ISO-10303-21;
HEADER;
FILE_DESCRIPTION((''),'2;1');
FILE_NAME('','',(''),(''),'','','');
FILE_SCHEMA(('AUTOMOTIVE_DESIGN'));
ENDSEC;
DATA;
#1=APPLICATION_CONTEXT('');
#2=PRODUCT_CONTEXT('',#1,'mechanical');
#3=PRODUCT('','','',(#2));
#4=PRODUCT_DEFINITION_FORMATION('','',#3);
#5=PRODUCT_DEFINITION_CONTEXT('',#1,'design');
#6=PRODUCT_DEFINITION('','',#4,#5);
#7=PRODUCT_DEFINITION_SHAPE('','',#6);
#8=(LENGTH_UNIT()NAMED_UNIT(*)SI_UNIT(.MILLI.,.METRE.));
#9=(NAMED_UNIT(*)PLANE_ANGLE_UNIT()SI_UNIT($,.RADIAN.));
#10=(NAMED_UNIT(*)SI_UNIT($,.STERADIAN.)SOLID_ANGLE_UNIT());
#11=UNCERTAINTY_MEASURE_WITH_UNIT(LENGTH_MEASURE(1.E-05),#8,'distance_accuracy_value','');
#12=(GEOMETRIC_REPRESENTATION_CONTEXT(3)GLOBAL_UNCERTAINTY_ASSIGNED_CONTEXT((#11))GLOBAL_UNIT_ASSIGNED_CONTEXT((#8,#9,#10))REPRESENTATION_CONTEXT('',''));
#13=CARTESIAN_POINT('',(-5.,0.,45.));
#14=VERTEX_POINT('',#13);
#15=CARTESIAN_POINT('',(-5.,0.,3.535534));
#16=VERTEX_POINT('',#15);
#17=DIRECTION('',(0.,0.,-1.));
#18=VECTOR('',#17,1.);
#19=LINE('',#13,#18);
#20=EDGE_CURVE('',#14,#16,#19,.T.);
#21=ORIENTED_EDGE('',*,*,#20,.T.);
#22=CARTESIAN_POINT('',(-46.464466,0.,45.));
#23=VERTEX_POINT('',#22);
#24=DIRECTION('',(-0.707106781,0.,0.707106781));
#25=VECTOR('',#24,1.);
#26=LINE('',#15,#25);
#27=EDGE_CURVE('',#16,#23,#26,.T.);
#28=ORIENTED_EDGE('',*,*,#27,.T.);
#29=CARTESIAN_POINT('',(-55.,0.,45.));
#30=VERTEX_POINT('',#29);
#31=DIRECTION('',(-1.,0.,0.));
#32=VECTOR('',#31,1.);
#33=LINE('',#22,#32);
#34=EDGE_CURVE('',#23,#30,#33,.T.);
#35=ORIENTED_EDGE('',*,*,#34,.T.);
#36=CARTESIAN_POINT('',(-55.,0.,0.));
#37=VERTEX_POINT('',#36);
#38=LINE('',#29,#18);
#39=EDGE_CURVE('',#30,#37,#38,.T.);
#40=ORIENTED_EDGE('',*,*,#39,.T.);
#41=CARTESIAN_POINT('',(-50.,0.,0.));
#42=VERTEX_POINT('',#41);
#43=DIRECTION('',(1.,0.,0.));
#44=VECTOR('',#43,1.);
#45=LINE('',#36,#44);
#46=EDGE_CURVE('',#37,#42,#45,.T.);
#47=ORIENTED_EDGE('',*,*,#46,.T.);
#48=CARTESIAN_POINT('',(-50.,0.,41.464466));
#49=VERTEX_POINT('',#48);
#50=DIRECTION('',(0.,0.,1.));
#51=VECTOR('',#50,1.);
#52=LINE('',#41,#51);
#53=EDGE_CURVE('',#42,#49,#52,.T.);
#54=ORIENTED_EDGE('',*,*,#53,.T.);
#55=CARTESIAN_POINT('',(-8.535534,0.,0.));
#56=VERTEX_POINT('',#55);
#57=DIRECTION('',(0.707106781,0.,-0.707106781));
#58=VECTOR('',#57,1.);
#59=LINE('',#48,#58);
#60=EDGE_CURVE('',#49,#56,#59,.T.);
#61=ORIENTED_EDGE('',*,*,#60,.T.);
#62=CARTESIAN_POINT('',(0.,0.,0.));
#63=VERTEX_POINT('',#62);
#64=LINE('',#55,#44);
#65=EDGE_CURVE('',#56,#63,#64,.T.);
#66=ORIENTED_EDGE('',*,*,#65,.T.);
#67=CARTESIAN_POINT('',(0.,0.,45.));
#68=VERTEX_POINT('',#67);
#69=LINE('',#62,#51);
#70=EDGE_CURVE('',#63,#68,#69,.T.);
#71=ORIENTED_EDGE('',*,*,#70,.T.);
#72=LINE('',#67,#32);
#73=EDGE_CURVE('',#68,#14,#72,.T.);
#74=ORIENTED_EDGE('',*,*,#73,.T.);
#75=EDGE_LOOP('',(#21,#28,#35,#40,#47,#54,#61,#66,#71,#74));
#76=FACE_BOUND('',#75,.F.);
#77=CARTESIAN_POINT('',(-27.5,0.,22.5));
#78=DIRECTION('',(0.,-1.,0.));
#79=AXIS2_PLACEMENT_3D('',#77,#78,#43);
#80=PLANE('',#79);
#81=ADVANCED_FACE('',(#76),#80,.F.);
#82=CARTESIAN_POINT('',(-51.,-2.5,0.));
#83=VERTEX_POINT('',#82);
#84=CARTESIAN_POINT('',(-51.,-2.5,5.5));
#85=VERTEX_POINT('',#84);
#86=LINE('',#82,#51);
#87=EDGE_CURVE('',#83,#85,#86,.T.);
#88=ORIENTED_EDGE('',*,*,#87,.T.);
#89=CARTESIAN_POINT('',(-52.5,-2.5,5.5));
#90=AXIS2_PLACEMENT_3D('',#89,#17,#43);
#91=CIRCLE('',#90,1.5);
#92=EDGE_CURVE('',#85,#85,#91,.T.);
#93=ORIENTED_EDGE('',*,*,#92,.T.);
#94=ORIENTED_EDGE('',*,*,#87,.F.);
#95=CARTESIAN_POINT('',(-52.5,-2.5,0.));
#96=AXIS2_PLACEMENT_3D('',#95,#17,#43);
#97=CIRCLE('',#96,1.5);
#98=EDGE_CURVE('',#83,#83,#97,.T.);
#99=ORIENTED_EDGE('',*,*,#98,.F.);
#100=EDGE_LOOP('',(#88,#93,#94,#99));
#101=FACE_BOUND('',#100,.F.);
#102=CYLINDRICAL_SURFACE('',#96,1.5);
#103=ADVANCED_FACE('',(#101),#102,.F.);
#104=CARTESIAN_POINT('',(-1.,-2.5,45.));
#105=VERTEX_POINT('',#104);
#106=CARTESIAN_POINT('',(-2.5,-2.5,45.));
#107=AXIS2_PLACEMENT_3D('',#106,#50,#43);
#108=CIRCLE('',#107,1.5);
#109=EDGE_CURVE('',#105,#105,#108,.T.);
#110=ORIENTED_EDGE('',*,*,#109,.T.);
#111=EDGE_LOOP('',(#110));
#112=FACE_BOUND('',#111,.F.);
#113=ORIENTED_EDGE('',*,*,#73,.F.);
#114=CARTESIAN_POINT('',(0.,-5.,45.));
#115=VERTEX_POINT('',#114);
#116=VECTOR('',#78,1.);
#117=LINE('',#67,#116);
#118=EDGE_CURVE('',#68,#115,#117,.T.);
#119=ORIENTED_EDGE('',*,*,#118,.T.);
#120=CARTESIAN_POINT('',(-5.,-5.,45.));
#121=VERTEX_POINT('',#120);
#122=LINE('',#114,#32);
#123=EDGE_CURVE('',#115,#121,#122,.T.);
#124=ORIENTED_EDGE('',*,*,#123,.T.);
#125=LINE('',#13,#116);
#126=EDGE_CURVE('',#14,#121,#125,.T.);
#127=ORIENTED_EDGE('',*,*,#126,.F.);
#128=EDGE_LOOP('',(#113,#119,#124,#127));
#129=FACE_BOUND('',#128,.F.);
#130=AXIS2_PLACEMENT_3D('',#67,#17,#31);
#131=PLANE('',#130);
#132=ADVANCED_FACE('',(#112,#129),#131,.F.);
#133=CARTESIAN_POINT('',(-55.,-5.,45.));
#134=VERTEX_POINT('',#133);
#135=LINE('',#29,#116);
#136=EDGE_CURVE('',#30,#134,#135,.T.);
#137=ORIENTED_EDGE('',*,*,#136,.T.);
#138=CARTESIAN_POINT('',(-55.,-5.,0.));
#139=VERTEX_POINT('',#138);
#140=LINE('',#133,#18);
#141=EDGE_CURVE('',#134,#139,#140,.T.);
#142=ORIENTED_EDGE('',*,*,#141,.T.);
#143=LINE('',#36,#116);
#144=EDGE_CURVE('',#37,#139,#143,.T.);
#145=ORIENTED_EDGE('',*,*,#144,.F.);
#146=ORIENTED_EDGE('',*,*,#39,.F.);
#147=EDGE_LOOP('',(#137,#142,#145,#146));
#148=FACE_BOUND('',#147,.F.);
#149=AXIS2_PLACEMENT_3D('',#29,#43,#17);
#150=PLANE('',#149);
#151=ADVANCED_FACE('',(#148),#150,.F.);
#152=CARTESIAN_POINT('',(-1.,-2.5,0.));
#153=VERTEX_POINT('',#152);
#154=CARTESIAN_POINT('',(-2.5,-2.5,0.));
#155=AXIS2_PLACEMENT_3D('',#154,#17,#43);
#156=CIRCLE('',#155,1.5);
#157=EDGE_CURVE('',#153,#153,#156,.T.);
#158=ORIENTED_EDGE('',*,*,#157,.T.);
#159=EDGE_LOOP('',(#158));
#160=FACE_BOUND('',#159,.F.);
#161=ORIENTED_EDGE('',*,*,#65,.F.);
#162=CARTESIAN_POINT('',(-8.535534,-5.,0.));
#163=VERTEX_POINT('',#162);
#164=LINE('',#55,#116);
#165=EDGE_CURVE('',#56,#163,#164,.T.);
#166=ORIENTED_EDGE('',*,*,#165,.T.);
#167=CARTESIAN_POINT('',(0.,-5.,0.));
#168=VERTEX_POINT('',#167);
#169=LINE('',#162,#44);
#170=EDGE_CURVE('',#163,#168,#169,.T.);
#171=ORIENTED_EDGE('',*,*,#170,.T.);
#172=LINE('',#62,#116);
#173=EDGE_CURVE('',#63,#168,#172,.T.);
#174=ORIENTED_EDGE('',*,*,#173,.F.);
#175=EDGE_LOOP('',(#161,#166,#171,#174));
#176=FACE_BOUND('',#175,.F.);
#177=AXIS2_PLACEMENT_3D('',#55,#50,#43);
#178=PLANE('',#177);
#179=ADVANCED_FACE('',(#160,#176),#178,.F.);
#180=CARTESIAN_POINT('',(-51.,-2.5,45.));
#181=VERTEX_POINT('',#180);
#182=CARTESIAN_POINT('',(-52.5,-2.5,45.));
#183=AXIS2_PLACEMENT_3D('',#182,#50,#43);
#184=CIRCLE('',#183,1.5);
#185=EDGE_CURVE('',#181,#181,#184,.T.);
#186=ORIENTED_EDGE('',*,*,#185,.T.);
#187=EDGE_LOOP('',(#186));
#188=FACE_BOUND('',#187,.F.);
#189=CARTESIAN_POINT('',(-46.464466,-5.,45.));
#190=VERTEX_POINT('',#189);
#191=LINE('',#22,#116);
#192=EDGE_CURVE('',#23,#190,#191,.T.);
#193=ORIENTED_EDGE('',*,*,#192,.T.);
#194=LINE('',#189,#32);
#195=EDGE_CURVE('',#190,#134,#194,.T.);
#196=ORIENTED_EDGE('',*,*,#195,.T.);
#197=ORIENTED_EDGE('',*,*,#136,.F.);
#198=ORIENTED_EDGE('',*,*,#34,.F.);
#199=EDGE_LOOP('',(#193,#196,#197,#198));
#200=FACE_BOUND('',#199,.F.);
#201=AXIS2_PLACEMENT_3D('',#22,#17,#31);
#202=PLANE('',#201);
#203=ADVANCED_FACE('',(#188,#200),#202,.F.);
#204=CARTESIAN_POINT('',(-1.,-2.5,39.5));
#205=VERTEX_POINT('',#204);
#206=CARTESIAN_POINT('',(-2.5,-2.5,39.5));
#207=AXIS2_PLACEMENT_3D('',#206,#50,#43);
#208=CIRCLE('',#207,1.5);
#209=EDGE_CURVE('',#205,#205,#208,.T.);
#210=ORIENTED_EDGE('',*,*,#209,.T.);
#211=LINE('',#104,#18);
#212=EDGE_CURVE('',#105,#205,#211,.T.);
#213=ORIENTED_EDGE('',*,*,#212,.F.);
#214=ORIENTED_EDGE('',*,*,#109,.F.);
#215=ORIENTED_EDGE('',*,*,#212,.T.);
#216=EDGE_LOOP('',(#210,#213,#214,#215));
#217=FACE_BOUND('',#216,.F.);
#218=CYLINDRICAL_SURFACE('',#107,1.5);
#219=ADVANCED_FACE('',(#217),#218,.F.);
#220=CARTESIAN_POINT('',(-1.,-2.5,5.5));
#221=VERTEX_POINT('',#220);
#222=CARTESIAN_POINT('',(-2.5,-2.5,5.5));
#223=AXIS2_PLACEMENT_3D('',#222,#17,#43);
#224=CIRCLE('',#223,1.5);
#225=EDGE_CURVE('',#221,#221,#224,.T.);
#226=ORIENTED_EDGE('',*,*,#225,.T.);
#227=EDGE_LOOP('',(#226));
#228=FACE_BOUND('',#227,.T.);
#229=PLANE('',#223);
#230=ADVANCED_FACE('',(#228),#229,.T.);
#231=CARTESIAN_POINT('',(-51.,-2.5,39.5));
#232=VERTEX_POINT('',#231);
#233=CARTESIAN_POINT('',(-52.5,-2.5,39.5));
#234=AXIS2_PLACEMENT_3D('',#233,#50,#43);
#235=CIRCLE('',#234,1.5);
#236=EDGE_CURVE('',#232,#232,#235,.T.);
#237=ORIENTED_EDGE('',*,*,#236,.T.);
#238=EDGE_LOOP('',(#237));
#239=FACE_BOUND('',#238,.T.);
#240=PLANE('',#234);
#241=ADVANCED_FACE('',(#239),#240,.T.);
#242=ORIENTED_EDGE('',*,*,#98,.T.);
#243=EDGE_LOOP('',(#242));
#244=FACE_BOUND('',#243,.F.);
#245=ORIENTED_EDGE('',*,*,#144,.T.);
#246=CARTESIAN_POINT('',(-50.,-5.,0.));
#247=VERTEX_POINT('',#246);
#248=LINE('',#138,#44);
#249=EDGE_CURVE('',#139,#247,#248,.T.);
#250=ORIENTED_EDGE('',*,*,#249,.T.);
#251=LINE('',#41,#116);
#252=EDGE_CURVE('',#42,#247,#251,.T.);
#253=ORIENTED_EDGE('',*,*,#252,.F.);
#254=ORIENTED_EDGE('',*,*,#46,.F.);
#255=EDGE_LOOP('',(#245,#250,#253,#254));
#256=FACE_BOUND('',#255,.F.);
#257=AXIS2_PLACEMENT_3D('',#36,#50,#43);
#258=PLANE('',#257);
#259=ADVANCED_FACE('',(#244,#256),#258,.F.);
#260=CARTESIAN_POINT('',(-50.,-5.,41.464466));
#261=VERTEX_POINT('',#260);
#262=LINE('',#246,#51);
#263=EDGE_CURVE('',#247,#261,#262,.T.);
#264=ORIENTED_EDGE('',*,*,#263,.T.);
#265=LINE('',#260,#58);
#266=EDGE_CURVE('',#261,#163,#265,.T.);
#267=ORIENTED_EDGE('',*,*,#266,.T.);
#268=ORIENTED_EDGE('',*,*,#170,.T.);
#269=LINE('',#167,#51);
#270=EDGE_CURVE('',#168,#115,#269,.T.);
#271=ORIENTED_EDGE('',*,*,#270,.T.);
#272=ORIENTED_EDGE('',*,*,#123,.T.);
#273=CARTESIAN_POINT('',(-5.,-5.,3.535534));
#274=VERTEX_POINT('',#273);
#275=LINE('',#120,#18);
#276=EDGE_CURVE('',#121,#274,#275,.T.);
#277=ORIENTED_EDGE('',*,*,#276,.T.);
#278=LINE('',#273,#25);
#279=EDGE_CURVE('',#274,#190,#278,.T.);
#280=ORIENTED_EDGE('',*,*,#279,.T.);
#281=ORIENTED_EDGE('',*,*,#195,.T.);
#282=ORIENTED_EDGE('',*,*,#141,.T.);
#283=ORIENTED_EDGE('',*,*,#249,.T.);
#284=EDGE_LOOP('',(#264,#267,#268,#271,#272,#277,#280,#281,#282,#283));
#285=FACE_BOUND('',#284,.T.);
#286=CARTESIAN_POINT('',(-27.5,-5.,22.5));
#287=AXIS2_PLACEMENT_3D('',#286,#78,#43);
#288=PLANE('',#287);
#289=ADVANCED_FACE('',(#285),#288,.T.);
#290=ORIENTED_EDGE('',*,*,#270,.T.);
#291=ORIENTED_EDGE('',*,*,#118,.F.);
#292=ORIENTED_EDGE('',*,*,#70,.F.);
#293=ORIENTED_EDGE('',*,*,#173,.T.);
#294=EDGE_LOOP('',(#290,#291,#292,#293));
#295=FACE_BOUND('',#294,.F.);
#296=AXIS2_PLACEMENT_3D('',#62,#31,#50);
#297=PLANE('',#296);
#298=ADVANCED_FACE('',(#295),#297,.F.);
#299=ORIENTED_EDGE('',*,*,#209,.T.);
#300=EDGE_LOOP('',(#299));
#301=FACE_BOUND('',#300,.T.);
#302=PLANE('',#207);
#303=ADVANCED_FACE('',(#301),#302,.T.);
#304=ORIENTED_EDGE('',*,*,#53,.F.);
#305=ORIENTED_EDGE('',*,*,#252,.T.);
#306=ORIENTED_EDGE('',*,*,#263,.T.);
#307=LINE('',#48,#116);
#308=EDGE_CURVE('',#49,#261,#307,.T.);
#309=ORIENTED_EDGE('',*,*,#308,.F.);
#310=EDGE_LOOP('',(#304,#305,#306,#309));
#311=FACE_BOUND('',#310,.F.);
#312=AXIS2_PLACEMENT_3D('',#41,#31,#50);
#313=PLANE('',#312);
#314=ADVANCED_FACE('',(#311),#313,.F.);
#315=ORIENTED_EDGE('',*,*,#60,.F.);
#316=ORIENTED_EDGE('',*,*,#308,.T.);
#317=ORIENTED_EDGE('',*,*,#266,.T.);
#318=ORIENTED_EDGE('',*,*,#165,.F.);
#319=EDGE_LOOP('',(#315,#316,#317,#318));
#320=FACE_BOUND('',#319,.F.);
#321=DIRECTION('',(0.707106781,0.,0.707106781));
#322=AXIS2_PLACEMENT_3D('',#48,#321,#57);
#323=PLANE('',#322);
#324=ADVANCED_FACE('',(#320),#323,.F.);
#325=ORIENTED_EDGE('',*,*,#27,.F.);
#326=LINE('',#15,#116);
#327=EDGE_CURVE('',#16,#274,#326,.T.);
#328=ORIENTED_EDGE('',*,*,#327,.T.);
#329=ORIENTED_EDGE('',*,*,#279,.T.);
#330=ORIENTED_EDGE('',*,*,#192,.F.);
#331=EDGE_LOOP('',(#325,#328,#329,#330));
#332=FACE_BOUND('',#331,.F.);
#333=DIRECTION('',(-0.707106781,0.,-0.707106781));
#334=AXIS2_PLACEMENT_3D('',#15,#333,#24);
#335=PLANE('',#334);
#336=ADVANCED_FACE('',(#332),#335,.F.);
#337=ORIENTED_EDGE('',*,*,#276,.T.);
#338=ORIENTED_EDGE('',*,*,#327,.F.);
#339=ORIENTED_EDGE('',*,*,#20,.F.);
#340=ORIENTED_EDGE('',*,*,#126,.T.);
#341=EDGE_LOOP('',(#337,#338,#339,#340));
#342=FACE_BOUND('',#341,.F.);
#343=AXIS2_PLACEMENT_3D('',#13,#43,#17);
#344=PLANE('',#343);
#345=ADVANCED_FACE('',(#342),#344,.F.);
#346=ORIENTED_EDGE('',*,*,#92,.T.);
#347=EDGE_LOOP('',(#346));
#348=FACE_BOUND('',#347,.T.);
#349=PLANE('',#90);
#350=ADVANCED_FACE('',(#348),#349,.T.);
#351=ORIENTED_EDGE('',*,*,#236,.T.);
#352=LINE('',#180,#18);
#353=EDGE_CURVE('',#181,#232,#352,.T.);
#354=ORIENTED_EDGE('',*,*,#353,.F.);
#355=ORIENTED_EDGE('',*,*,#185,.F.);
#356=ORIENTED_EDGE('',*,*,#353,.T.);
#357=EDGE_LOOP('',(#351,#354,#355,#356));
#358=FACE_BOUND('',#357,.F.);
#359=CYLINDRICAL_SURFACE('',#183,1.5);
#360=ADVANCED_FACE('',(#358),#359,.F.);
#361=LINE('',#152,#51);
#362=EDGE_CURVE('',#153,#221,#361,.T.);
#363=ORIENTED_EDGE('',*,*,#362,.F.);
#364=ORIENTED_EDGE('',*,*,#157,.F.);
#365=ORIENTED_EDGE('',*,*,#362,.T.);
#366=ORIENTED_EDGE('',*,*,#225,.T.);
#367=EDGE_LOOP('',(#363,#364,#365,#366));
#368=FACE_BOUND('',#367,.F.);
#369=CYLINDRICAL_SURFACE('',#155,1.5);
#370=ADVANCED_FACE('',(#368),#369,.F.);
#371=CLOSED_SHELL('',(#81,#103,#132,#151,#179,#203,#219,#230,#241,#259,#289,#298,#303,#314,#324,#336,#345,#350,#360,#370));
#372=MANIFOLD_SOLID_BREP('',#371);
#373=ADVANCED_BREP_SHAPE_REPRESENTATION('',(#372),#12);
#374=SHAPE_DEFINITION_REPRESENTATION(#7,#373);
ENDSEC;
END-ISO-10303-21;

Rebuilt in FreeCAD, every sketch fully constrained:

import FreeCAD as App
import Part
import Sketcher

V = App.Vector
Q = App.Units.Quantity


def add_polygon(sketch, points):
    """Adds a closed chain of lines whose ends are joined by coincident constraints."""
    first, n = sketch.GeometryCount, len(points)
    for a, b in zip(points, points[1:] + points[:1]):
        sketch.addGeometry(Part.LineSegment(App.Vector(*a, 0), App.Vector(*b, 0)), False)
    for i in range(n):
        sketch.addConstraint(Sketcher.Constraint("Coincident", first + i, 2, first + (i + 1) % n, 1))

doc = App.newDocument("Part")
params = doc.addObject("Spreadsheet::Sheet", "Params")
for row, (alias, value) in enumerate([
    ("sketch1_width", "5 mm"),
    ("sketch1_height", "45 mm"),
    ("pad1_length", "5 mm"),
    ("sketch2_diameter", "3 mm"),
    ("pocket1_length", "5.5 mm"),
    ("sketch3_diameter", "3 mm"),
    ("pocket2_length", "5.5 mm"),
], start=1):
    params.set(f"A{row}", alias)
    params.set(f"B{row}", "=" + value)
    params.setAlias(f"B{row}", alias)

body = doc.addObject("PartDesign::Body", "Body")

sketch1 = body.newObject("Sketcher::SketchObject", "Sketch")
sketch1.AttachmentSupport = (doc.getObject("XZ_Plane"), [""])
sketch1.MapMode = "FlatFace"
add_polygon(sketch1, [(-46, 45), (-55, 45), (-55, 0), (-50, 0), (-50, 41), (-9, 0), (0, 0), (0, 45), (-5, 45), (-5, 4)])
sketch1.addConstraint(Sketcher.Constraint("Horizontal", 0))
sketch1.addConstraint(Sketcher.Constraint("Vertical", 1))
sketch1.addConstraint(Sketcher.Constraint("Horizontal", 2))
sketch1.addConstraint(Sketcher.Constraint("Vertical", 3))
sketch1.addConstraint(Sketcher.Constraint("Horizontal", 5))
sketch1.addConstraint(Sketcher.Constraint("Vertical", 6))
sketch1.addConstraint(Sketcher.Constraint("Horizontal", 7))
sketch1.addConstraint(Sketcher.Constraint("Vertical", 8))
sketch1.addConstraint(Sketcher.Constraint("Coincident", 5, 2, -1, 1))
sketch1.addConstraint(Sketcher.Constraint("PointOnObject", 1, 2, -1))
sketch1.addConstraint(Sketcher.Constraint("Parallel", 4, 9))
sketch1.addConstraint(Sketcher.Constraint("Horizontal", 0, 2, 6, 2))
sketch1.addConstraint(Sketcher.Constraint("Equal", 0, 5))
sketch1.addConstraint(Sketcher.Constraint("Equal", 2, 7))
sketch1.addConstraint(Sketcher.Constraint("DistanceX", 2, 1, 2, 2, Q("5 mm")))
sketch1.addConstraint(Sketcher.Constraint("DistanceY", 1, 2, 1, 1, Q("45 mm")))
sketch1.addConstraint(Sketcher.Constraint("Angle", 4, Q("-45 deg")))
sketch1.addConstraint(Sketcher.Constraint("DistanceX", 0, 2, -1, 1, Q("55 mm")))
sketch1.addConstraint(Sketcher.Constraint("Distance", 4, Q("58.63961 mm")))
sketch1.setExpression("Constraints[24]", "Params.sketch1_width")
sketch1.setExpression("Constraints[25]", "Params.sketch1_height")
pad1 = body.newObject("PartDesign::Pad", "Pad")
pad1.Profile = sketch1
pad1.setExpression("Length", "Params.pad1_length")

sketch2 = body.newObject("Sketcher::SketchObject", "Sketch001")
sketch2.AttachmentSupport = (doc.getObject("XY_Plane"), [""])
sketch2.MapMode = "FlatFace"
sketch2.AttachmentOffset = App.Placement(V(0, 0, 45), App.Rotation())
sketch2.addGeometry(Part.Circle(V(-52.5, -2.5, 0), V(0, 0, 1), 1.5), False)
sketch2.addGeometry(Part.Circle(V(-2.5, -2.5, 0), V(0, 0, 1), 1.5), False)
sketch2.addGeometry(Part.Circle(V(101.7, -24.7, 0), V(0, 0, 1), 4.1), False)
sketch2.addConstraint(Sketcher.Constraint("Equal", 0, 1))
sketch2.addConstraint(Sketcher.Constraint("Horizontal", 0, 3, 1, 3))
sketch2.addConstraint(Sketcher.Constraint("Diameter", 0, Q("3 mm")))
sketch2.addConstraint(Sketcher.Constraint("DistanceX", 0, 3, 1, 3, Q("50 mm")))
sketch2.addConstraint(Sketcher.Constraint("DistanceX", 0, 3, -1, 1, Q("52.5 mm")))
sketch2.addConstraint(Sketcher.Constraint("DistanceY", 0, 3, -1, 1, Q("2.5 mm")))
sketch2.addConstraint(Sketcher.Constraint("Diameter", 2, Q("8.231572 mm")))
sketch2.addConstraint(Sketcher.Constraint("DistanceX", -1, 1, 2, 3, Q("101.68349 mm")))
sketch2.addConstraint(Sketcher.Constraint("DistanceY", 2, 3, -1, 1, Q("24.659157 mm")))
sketch2.setExpression("Constraints[2]", "Params.sketch2_diameter")
pocket1 = body.newObject("PartDesign::Pocket", "Pocket")
pocket1.Profile = sketch2
pocket1.setExpression("Length", "Params.pocket1_length")

sketch3 = body.newObject("Sketcher::SketchObject", "Sketch002")
sketch3.AttachmentSupport = (doc.getObject("XY_Plane"), [""])
sketch3.MapMode = "FlatFace"
sketch3.addGeometry(Part.Circle(V(-52.5, -2.5, 0), V(0, 0, 1), 1.5), False)
sketch3.addGeometry(Part.Circle(V(-2.5, -2.5, 0), V(0, 0, 1), 1.5), False)
sketch3.addConstraint(Sketcher.Constraint("Equal", 0, 1))
sketch3.addConstraint(Sketcher.Constraint("Horizontal", 0, 3, 1, 3))
sketch3.addConstraint(Sketcher.Constraint("Diameter", 0, Q("3 mm")))
sketch3.addConstraint(Sketcher.Constraint("DistanceX", 0, 3, 1, 3, Q("50 mm")))
sketch3.addConstraint(Sketcher.Constraint("DistanceX", 0, 3, -1, 1, Q("52.5 mm")))
sketch3.addConstraint(Sketcher.Constraint("DistanceY", 0, 3, -1, 1, Q("2.5 mm")))
sketch3.setExpression("Constraints[2]", "Params.sketch3_diameter")
pocket2 = body.newObject("PartDesign::Pocket", "Pocket001")
pocket2.Profile = sketch3
pocket2.setExpression("Length", "Params.pocket2_length")
pocket2.Reversed = True

doc.recompute()
